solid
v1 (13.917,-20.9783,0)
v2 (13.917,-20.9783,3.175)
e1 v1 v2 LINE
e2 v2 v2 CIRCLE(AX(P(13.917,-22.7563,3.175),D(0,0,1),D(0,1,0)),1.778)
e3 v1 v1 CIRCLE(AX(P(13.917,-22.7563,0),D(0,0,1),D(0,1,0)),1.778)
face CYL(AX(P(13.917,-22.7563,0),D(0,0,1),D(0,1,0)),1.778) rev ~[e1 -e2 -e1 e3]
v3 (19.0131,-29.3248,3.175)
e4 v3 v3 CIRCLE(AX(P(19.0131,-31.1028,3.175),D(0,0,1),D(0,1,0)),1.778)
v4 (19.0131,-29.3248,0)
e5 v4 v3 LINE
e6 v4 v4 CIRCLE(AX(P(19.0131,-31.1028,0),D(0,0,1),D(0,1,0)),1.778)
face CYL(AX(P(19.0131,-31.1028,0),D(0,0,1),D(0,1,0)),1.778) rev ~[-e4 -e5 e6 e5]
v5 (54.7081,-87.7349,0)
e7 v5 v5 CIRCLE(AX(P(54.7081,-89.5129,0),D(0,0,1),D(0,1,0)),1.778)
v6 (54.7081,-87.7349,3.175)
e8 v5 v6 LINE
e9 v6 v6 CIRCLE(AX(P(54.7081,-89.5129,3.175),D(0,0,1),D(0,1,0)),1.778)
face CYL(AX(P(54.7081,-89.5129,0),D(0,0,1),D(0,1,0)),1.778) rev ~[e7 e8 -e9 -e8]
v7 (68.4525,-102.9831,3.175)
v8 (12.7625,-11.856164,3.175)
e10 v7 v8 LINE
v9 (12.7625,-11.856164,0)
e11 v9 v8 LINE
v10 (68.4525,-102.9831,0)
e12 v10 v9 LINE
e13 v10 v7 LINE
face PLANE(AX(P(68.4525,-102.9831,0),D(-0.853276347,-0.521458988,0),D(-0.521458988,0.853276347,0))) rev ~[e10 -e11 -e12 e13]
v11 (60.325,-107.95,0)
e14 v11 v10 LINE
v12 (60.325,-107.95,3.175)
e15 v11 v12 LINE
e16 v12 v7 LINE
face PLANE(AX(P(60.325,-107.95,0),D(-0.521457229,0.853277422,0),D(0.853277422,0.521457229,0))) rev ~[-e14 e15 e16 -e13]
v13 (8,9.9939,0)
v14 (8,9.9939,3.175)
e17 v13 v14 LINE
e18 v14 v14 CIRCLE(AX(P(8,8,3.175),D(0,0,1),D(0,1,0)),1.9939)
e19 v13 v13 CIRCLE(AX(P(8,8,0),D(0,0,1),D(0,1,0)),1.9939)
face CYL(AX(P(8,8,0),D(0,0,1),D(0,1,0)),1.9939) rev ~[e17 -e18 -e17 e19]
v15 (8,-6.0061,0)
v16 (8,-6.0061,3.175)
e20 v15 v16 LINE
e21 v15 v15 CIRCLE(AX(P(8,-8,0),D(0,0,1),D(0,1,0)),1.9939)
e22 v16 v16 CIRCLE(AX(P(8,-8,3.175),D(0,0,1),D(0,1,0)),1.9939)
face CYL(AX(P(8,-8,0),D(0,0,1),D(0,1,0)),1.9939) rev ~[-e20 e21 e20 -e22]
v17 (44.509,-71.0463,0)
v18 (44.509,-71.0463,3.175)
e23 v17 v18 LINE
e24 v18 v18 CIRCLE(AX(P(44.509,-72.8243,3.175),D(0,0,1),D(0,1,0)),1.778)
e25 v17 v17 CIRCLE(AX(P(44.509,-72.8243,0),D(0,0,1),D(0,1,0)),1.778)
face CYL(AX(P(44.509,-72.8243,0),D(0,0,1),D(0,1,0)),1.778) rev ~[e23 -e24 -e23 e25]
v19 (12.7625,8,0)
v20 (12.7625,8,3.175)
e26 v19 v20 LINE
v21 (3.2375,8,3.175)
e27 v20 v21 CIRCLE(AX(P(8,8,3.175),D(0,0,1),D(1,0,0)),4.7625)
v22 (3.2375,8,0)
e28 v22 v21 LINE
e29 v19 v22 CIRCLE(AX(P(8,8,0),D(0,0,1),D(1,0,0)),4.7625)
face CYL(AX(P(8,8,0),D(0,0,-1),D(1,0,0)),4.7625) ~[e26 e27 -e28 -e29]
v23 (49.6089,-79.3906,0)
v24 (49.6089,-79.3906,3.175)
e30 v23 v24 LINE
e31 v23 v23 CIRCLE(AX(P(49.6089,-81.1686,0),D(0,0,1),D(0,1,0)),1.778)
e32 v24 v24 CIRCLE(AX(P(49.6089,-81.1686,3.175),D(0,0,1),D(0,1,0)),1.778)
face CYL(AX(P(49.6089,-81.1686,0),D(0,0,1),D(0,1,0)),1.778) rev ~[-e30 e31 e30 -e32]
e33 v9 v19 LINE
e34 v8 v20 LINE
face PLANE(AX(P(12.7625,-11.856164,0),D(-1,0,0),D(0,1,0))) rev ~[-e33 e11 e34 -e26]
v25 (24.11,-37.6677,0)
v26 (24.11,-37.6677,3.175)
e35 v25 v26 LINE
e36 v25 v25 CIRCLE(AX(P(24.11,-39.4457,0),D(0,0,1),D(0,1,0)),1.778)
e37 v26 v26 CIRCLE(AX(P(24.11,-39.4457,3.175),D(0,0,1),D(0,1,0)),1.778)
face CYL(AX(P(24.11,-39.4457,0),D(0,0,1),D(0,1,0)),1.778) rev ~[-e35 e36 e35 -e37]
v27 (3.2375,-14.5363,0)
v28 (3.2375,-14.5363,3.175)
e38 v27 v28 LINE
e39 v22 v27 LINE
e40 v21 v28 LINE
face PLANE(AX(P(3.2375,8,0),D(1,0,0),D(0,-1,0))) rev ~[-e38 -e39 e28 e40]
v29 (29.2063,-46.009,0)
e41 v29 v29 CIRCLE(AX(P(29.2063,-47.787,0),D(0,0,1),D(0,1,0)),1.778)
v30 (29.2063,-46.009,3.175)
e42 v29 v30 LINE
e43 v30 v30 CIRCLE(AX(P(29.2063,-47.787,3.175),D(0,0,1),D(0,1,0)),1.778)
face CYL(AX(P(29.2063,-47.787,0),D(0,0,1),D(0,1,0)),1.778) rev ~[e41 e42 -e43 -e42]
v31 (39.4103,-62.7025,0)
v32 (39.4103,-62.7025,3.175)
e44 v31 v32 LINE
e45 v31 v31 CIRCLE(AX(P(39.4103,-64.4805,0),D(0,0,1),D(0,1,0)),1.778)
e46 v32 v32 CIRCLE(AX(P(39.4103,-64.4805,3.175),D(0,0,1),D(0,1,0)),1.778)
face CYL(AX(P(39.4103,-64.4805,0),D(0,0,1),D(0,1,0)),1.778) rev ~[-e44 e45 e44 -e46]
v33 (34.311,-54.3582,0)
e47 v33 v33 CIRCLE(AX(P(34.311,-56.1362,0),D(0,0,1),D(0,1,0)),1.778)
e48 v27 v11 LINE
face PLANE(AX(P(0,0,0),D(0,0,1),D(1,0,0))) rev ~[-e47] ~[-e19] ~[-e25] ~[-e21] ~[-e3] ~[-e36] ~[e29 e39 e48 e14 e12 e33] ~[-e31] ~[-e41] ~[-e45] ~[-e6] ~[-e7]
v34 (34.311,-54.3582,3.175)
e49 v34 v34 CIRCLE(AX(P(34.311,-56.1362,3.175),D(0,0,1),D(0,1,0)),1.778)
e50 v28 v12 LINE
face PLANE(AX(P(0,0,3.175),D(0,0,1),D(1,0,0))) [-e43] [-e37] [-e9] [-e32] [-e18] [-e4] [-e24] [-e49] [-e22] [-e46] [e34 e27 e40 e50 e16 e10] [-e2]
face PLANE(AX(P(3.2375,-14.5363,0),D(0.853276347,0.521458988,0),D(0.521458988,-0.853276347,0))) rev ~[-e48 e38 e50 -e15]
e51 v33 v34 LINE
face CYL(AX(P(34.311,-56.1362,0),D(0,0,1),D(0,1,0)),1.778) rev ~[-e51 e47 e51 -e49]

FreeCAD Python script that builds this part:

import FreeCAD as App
import Part
import Sketcher
Q = App.Units.Quantity


def add_polygon(sketch, points):
    """Adds a closed chain of lines whose ends are joined by coincident constraints."""
    first, n = sketch.GeometryCount, len(points)
    for a, b in zip(points, points[1:] + points[:1]):
        sketch.addGeometry(Part.LineSegment(App.Vector(*a, 0), App.Vector(*b, 0)), False)
    for i in range(n):
        sketch.addConstraint(Sketcher.Constraint("Coincident", first + i, 2, first + (i + 1) % n, 1))

doc = App.newDocument("Part")
body = doc.addObject("PartDesign::Body", "Body")

sketch1 = body.newObject("Sketcher::SketchObject", "Sketch")
sketch1.AttachmentSupport = (doc.getObject("XY_Plane"), [""])
sketch1.MapMode = "FlatFace"
sketch1.addGeometry(Part.Circle(App.Vector(8, 8, 0), App.Vector(0, 0, 1), 4.8), False)
sketch1.addConstraint([
    Sketcher.Constraint("Diameter", 0, Q("0.375 in")),
    Sketcher.Constraint("DistanceX", -1, 1, 0, 3, Q("8 mm")),
    Sketcher.Constraint("DistanceY", -1, 1, 0, 3, Q("8 mm")),
])
pad1 = body.newObject("PartDesign::Pad", "Pad")
pad1.Profile = sketch1
pad1.Length = Q("0.125 in")

sketch2 = body.newObject("Sketcher::SketchObject", "Sketch001")
sketch2.AttachmentSupport = (doc.getObject("XY_Plane"), [""])
sketch2.MapMode = "FlatFace"
add_polygon(sketch2, [(13, -12), (13, 8), (3, 8), (3, -15), (60, -108), (68, -103)])
sketch2.addConstraint([
    Sketcher.Constraint("Vertical", 0),
    Sketcher.Constraint("Horizontal", 1),
    Sketcher.Constraint("Vertical", 2),
    Sketcher.Constraint("Perpendicular", 3, 4),
    Sketcher.Constraint("Perpendicular", 4, 5),
    Sketcher.Constraint("DistanceX", 1, 2, 1, 1, Q("0.375 in")),
    Sketcher.Constraint("Distance", 4, Q("0.375 in")),
    Sketcher.Constraint("DistanceY", 3, 2, -1, 1, Q("4.25 in")),
    Sketcher.Constraint("Angle", 3, Q("-58.5698 deg")),
    Sketcher.Constraint("DistanceX", -1, 1, 3, 2, Q("2.375 in")),
    Sketcher.Constraint("Distance", 3, Q("4.3101 in")),
    Sketcher.Constraint("DistanceY", 0, 1, 0, 2, Q("19.8562 mm")),
])
pad2 = body.newObject("PartDesign::Pad", "Pad001")
pad2.Profile = sketch2
pad2.Length = Q("0.125 in")

sketch3 = body.newObject("Sketcher::SketchObject", "Sketch002")
sketch3.AttachmentSupport = (doc.getObject("XY_Plane"), [""])
sketch3.MapMode = "FlatFace"
sketch3.addGeometry(Part.Circle(App.Vector(34.3, -56.1, 0), App.Vector(0, 0, 1), 1.8), False)
sketch3.addConstraint([
    Sketcher.Constraint("Diameter", 0, Q("0.14 in")),
    Sketcher.Constraint("DistanceX", -1, 1, 0, 3, Q("34.311 mm")),
    Sketcher.Constraint("DistanceY", 0, 3, -1, 1, Q("56.1362 mm")),
])
doc.recompute()
hole = body.newObject("PartDesign::Hole", "Hole")
hole.Profile = sketch3
hole.ThreadType = "None"
hole.Diameter = Q("0.14 in")
hole.DepthType = "ThroughAll"
hole.Reversed = True

sketch4 = body.newObject("Sketcher::SketchObject", "Sketch003")
sketch4.AttachmentSupport = (doc.getObject("XY_Plane"), [""])
sketch4.MapMode = "FlatFace"
sketch4.addGeometry(Part.Circle(App.Vector(49.6, -81.2, 0), App.Vector(0, 0, 1), 1.8), False)
sketch4.addConstraint([
    Sketcher.Constraint("Diameter", 0, Q("0.14 in")),
    Sketcher.Constraint("DistanceX", -1, 1, 0, 3, Q("1.9531 in")),
    Sketcher.Constraint("DistanceY", 0, 3, -1, 1, Q("81.1686 mm")),
])
doc.recompute()
hole2 = body.newObject("PartDesign::Hole", "Hole001")
hole2.Profile = sketch4
hole2.ThreadType = "None"
hole2.Diameter = Q("0.14 in")
hole2.DepthType = "ThroughAll"
hole2.Reversed = True

sketch5 = body.newObject("Sketcher::SketchObject", "Sketch004")
sketch5.AttachmentSupport = (doc.getObject("XY_Plane"), [""])
sketch5.MapMode = "FlatFace"
sketch5.addGeometry(Part.Circle(App.Vector(44.5, -72.8, 0), App.Vector(0, 0, 1), 1.8), False)
sketch5.addConstraint([
    Sketcher.Constraint("Diameter", 0, Q("0.14 in")),
    Sketcher.Constraint("DistanceY", 0, 3, -1, 1, Q("2.8671 in")),
    Sketcher.Constraint("DistanceX", -1, 1, 0, 3, Q("44.509 mm")),
])
doc.recompute()
hole3 = body.newObject("PartDesign::Hole", "Hole002")
hole3.Profile = sketch5
hole3.ThreadType = "None"
hole3.Diameter = Q("0.14 in")
hole3.DepthType = "ThroughAll"
hole3.Reversed = True

sketch6 = body.newObject("Sketcher::SketchObject", "Sketch005")
sketch6.AttachmentSupport = (doc.getObject("XY_Plane"), [""])
sketch6.MapMode = "FlatFace"
sketch6.addGeometry(Part.Circle(App.Vector(54.7, -89.5, 0), App.Vector(0, 0, 1), 1.8), False)
sketch6.addConstraint([
    Sketcher.Constraint("Diameter", 0, Q("0.14 in")),
    Sketcher.Constraint("DistanceX", -1, 1, 0, 3, Q("54.708 mm")),
    Sketcher.Constraint("DistanceY", 0, 3, -1, 1, Q("89.513 mm")),
])
doc.recompute()
hole4 = body.newObject("PartDesign::Hole", "Hole003")
hole4.Profile = sketch6
hole4.ThreadType = "None"
hole4.Diameter = Q("0.14 in")
hole4.DepthType = "ThroughAll"
hole4.Reversed = True

sketch7 = body.newObject("Sketcher::SketchObject", "Sketch006")
sketch7.AttachmentSupport = (doc.getObject("XY_Plane"), [""])
sketch7.MapMode = "FlatFace"
sketch7.addGeometry(Part.Circle(App.Vector(39.4, -64.5, 0), App.Vector(0, 0, 1), 1.8), False)
sketch7.addConstraint([
    Sketcher.Constraint("Diameter", 0, Q("0.14 in")),
    Sketcher.Constraint("DistanceY", 0, 3, -1, 1, Q("2.5386 in")),
    Sketcher.Constraint("DistanceX", -1, 1, 0, 3, Q("39.4103 mm")),
])
doc.recompute()
hole5 = body.newObject("PartDesign::Hole", "Hole004")
hole5.Profile = sketch7
hole5.ThreadType = "None"
hole5.Diameter = Q("0.14 in")
hole5.DepthType = "ThroughAll"
hole5.Reversed = True

sketch8 = body.newObject("Sketcher::SketchObject", "Sketch007")
sketch8.AttachmentSupport = (doc.getObject("XY_Plane"), [""])
sketch8.MapMode = "FlatFace"
sketch8.addGeometry(Part.Circle(App.Vector(29.2, -47.8, 0), App.Vector(0, 0, 1), 1.8), False)
sketch8.addConstraint([
    Sketcher.Constraint("Diameter", 0, Q("0.14 in")),
    Sketcher.Constraint("DistanceX", -1, 1, 0, 3, Q("29.2063 mm")),
    Sketcher.Constraint("DistanceY", 0, 3, -1, 1, Q("47.787 mm")),
])
doc.recompute()
hole6 = body.newObject("PartDesign::Hole", "Hole005")
hole6.Profile = sketch8
hole6.ThreadType = "None"
hole6.Diameter = Q("0.14 in")
hole6.DepthType = "ThroughAll"
hole6.Reversed = True

sketch9 = body.newObject("Sketcher::SketchObject", "Sketch008")
sketch9.AttachmentSupport = (doc.getObject("XY_Plane"), [""])
sketch9.MapMode = "FlatFace"
sketch9.addGeometry(Part.Circle(App.Vector(24.1, -39.4, 0), App.Vector(0, 0, 1), 1.8), False)
sketch9.addConstraint([
    Sketcher.Constraint("Diameter", 0, Q("0.14 in")),
    Sketcher.Constraint("DistanceX", -1, 1, 0, 3, Q("24.11 mm")),
    Sketcher.Constraint("DistanceY", 0, 3, -1, 1, Q("39.4457 mm")),
])
doc.recompute()
hole7 = body.newObject("PartDesign::Hole", "Hole006")
hole7.Profile = sketch9
hole7.ThreadType = "None"
hole7.Diameter = Q("0.14 in")
hole7.DepthType = "ThroughAll"
hole7.Reversed = True

sketch10 = body.newObject("Sketcher::SketchObject", "Sketch009")
sketch10.AttachmentSupport = (doc.getObject("XY_Plane"), [""])
sketch10.MapMode = "FlatFace"
sketch10.addGeometry(Part.Circle(App.Vector(19, -31.1, 0), App.Vector(0, 0, 1), 1.8), False)
sketch10.addConstraint([
    Sketcher.Constraint("Diameter", 0, Q("0.14 in")),
    Sketcher.Constraint("DistanceX", -1, 1, 0, 3, Q("19.013 mm")),
    Sketcher.Constraint("DistanceY", 0, 3, -1, 1, Q("31.1028 mm")),
])
doc.recompute()
hole8 = body.newObject("PartDesign::Hole", "Hole007")
hole8.Profile = sketch10
hole8.ThreadType = "None"
hole8.Diameter = Q("0.14 in")
hole8.DepthType = "ThroughAll"
hole8.Reversed = True

sketch11 = body.newObject("Sketcher::SketchObject", "Sketch010")
sketch11.AttachmentSupport = (doc.getObject("XY_Plane"), [""])
sketch11.MapMode = "FlatFace"
sketch11.addGeometry(Part.Circle(App.Vector(13.9, -22.8, 0), App.Vector(0, 0, 1), 1.8), False)
sketch11.addConstraint([
    Sketcher.Constraint("Diameter", 0, Q("0.14 in")),
    Sketcher.Constraint("DistanceX", -1, 1, 0, 3, Q("13.917 mm")),
    Sketcher.Constraint("DistanceY", 0, 3, -1, 1, Q("22.7563 mm")),
])
doc.recompute()
hole9 = body.newObject("PartDesign::Hole", "Hole008")
hole9.Profile = sketch11
hole9.ThreadType = "None"
hole9.Diameter = Q("0.14 in")
hole9.DepthType = "ThroughAll"
hole9.Reversed = True

sketch12 = body.newObject("Sketcher::SketchObject", "Sketch011")
sketch12.AttachmentSupport = (doc.getObject("XY_Plane"), [""])
sketch12.MapMode = "FlatFace"
sketch12.addGeometry(Part.Circle(App.Vector(8, -8, 0), App.Vector(0, 0, 1), 2), False)
sketch12.addConstraint([
    Sketcher.Constraint("Diameter", 0, Q("0.157 in")),
    Sketcher.Constraint("DistanceX", -1, 1, 0, 3, Q("8 mm")),
    Sketcher.Constraint("DistanceY", 0, 3, -1, 1, Q("8 mm")),
])
doc.recompute()
hole10 = body.newObject("PartDesign::Hole", "Hole009")
hole10.Profile = sketch12
hole10.ThreadType = "None"
hole10.Diameter = Q("0.157 in")
hole10.DepthType = "ThroughAll"
hole10.Reversed = True

sketch13 = body.newObject("Sketcher::SketchObject", "Sketch012")
sketch13.AttachmentSupport = (doc.getObject("XY_Plane"), [""])
sketch13.MapMode = "FlatFace"
sketch13.addGeometry(Part.Circle(App.Vector(8, 8, 0), App.Vector(0, 0, 1), 2), False)
sketch13.addConstraint([
    Sketcher.Constraint("Diameter", 0, Q("0.157 in")),
    Sketcher.Constraint("DistanceX", -1, 1, 0, 3, Q("8 mm")),
    Sketcher.Constraint("DistanceY", -1, 1, 0, 3, Q("8 mm")),
])
doc.recompute()
hole11 = body.newObject("PartDesign::Hole", "Hole010")
hole11.Profile = sketch13
hole11.ThreadType = "None"
hole11.Diameter = Q("0.157 in")
hole11.DepthType = "ThroughAll"
hole11.Reversed = True

doc.recompute()
